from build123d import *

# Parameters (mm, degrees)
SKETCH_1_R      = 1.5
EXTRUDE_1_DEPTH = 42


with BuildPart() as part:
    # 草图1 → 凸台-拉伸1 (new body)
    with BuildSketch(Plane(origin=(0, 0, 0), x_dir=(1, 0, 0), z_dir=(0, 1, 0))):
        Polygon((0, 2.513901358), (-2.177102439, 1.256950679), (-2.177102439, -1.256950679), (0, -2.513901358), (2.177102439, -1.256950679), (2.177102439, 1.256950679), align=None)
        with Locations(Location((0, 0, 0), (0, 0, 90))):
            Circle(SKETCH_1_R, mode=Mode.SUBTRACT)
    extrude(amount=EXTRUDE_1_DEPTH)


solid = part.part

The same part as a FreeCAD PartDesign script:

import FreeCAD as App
import Part
import Sketcher
Q = App.Units.Quantity

doc = App.newDocument("Part")
params = doc.addObject("Spreadsheet::Sheet", "Params")
for row, (alias, value) in enumerate([
    ("sketch1_diameter", "3 mm"),
    ("pad1_length", "42 mm"),
], start=1):
    params.set(f"A{row}", alias)
    params.set(f"B{row}", "=" + value)
    params.setAlias(f"B{row}", alias)

body = doc.addObject("PartDesign::Body", "Body")

sketch1 = doc.addObject("Sketcher::SketchObject", "Sketch")
body.addObject(sketch1)
sketch1.AttachmentSupport = (doc.XZ_Plane, [""])
sketch1.MapMode = "FlatFace"
sketch1.addGeometry([
    Part.LineSegment(App.Vector(0, -2.513901, 0), App.Vector(-2.177102, -1.256951, 0)),
    Part.LineSegment(App.Vector(-2.177102, -1.256951, 0), App.Vector(-2.177102, 1.256951, 0)),
    Part.LineSegment(App.Vector(-2.177102, 1.256951, 0), App.Vector(0, 2.513901, 0)),
    Part.LineSegment(App.Vector(0, 2.513901, 0), App.Vector(2.177102, 1.256951, 0)),
    Part.LineSegment(App.Vector(2.177102, 1.256951, 0), App.Vector(2.177102, -1.256951, 0)),
    Part.LineSegment(App.Vector(2.177102, -1.256951, 0), App.Vector(0, -2.513901, 0)),
    Part.Circle(App.Vector(0, 0, 0), App.Vector(0, 0, 1), 1.5),
], False)
sketch1.addConstraint([
    Sketcher.Constraint("Coincident", 0, 2, 1, 1),
    Sketcher.Constraint("Coincident", 1, 2, 2, 1),
    Sketcher.Constraint("Coincident", 2, 2, 3, 1),
    Sketcher.Constraint("Coincident", 3, 2, 4, 1),
    Sketcher.Constraint("Coincident", 4, 2, 5, 1),
    Sketcher.Constraint("Coincident", 5, 2, 0, 1),
    Sketcher.Constraint("Vertical", 1),
    Sketcher.Constraint("Vertical", 4),
    Sketcher.Constraint("Coincident", 6, 3, -1, 1),
    Sketcher.Constraint("Symmetric", 0, 2, 3, 2, -1, 1),
    Sketcher.Constraint("Symmetric", 2, 2, 5, 2, -1, 1),
    Sketcher.Constraint("PointOnObject", 2, 2, -2),
    Sketcher.Constraint("Parallel", 2, 5),
    Sketcher.Constraint("Horizontal", 1, 2, 3, 2),
    Sketcher.Constraint("Diameter", 6, 3.0),
    Sketcher.Constraint("Angle", 0, Q("150 deg")),
    Sketcher.Constraint("DistanceY", 1, 1, 1, 2, 2.513901),
    Sketcher.Constraint("Distance", 0, 2.513901),
])
sketch1.setExpression("Constraints[14]", "Params.sketch1_diameter")
pad1 = doc.addObject("PartDesign::Pad", "Pad")
body.addObject(pad1)
pad1.Profile = sketch1
pad1.setExpression("Length", "Params.pad1_length")
pad1.Reversed = True

doc.recompute()
